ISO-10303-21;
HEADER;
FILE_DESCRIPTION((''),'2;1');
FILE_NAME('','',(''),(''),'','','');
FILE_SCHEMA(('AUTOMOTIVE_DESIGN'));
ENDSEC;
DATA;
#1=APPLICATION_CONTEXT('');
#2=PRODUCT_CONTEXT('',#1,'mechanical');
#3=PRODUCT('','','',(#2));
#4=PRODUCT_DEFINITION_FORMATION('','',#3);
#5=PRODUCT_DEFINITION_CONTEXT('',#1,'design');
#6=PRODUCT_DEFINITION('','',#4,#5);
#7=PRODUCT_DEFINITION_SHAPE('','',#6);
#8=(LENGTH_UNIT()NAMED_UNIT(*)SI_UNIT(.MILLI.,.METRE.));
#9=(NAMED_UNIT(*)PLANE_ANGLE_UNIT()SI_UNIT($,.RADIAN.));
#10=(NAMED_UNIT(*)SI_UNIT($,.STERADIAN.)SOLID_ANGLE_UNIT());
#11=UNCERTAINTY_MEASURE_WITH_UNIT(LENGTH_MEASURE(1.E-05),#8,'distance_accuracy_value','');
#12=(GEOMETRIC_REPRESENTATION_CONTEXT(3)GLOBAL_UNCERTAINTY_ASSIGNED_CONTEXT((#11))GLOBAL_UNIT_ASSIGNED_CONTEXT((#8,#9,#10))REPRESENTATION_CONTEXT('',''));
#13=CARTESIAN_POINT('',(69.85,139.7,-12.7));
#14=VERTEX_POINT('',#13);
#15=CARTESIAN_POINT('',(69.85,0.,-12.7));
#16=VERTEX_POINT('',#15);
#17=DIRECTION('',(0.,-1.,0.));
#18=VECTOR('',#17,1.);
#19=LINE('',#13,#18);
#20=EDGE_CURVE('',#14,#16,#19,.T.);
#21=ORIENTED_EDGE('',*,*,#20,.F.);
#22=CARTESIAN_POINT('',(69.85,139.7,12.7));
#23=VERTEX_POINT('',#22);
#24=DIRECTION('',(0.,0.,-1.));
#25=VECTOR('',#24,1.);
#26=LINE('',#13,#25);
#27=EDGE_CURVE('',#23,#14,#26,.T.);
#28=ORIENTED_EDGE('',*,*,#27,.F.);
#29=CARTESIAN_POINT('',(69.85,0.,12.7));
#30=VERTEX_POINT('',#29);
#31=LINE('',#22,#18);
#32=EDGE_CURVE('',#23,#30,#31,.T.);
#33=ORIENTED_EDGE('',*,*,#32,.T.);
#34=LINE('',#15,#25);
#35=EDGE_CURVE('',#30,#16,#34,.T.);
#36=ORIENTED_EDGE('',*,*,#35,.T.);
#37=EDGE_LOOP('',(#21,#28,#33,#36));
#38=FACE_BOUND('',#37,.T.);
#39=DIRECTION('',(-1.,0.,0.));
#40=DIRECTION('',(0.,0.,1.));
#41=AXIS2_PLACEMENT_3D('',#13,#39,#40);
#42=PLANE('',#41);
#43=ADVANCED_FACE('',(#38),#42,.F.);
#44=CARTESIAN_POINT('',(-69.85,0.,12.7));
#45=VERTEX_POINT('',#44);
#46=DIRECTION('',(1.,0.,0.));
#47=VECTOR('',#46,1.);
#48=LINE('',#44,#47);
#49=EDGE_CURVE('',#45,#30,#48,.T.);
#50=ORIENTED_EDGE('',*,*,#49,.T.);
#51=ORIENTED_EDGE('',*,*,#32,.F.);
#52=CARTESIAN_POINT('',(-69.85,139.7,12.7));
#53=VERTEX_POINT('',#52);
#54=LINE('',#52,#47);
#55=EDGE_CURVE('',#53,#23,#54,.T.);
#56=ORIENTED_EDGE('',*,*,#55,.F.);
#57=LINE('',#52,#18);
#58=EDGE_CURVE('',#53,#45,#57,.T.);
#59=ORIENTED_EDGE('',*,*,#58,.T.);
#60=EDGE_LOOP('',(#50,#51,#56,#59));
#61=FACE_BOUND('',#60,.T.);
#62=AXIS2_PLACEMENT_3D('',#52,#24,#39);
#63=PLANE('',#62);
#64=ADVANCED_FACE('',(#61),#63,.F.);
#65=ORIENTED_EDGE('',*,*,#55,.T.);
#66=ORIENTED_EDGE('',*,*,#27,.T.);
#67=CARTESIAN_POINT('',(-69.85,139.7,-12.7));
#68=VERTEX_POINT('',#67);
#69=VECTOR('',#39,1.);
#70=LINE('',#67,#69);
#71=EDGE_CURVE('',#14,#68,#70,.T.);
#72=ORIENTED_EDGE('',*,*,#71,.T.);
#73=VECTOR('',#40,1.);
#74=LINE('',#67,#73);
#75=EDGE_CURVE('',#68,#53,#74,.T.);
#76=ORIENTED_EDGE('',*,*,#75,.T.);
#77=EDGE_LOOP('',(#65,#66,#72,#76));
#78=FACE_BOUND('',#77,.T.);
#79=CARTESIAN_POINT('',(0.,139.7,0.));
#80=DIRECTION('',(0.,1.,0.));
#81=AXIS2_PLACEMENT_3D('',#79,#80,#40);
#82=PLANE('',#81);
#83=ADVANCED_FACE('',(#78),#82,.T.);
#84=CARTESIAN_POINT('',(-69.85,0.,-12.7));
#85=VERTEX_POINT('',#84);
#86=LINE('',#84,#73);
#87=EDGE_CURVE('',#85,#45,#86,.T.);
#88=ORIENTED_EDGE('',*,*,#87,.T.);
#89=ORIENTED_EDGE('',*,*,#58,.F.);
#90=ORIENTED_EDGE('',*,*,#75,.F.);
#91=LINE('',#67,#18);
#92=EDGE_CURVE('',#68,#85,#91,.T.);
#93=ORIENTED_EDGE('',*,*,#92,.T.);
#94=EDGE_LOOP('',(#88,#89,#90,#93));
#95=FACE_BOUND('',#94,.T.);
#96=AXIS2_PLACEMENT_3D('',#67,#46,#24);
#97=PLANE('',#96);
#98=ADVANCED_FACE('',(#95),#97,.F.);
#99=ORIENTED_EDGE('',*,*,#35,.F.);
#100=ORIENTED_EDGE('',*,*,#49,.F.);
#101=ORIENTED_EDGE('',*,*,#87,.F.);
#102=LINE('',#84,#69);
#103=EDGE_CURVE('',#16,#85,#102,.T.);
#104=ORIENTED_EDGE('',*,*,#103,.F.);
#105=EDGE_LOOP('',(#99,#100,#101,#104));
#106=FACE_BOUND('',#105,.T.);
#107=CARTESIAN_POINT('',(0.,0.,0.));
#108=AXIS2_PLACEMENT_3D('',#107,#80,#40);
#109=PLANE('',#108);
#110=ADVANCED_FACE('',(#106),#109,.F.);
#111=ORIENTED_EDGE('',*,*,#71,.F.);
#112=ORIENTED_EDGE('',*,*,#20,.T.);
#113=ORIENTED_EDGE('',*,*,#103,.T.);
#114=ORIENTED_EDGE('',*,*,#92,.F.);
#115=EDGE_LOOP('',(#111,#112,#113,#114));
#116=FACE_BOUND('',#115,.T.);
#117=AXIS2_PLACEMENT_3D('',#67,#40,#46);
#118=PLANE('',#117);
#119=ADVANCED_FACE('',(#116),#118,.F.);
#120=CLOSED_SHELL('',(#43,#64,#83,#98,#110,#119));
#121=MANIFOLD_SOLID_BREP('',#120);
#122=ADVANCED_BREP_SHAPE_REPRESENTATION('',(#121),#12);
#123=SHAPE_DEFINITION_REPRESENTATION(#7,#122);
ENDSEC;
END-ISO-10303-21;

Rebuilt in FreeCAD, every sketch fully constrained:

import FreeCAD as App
import Part
import Sketcher
Q = App.Units.Quantity

doc = App.newDocument("Part")
params = doc.addObject("Spreadsheet::Sheet", "Params")
for row, (alias, value) in enumerate([
    ("sketch1_height", "1 in"),
    ("sketch1_width", "5.5 in"),
    ("pad1_length", "5.5 in"),
], start=1):
    params.set(f"A{row}", alias)
    params.set(f"B{row}", "=" + value)
    params.setAlias(f"B{row}", alias)

body = doc.addObject("PartDesign::Body", "Body")

sketch1 = doc.addObject("Sketcher::SketchObject", "Sketch")
body.addObject(sketch1)
sketch1.AttachmentSupport = (doc.XZ_Plane, [""])
sketch1.MapMode = "FlatFace"
sketch1.addGeometry([
    Part.LineSegment(App.Vector(-70, -13, 0), App.Vector(-70, 13, 0)),
    Part.LineSegment(App.Vector(-70, 13, 0), App.Vector(70, 13, 0)),
    Part.LineSegment(App.Vector(70, 13, 0), App.Vector(70, -13, 0)),
    Part.LineSegment(App.Vector(70, -13, 0), App.Vector(-70, -13, 0)),
], False)
sketch1.addConstraint([
    Sketcher.Constraint("Coincident", 0, 2, 1, 1),
    Sketcher.Constraint("Coincident", 1, 2, 2, 1),
    Sketcher.Constraint("Coincident", 2, 2, 3, 1),
    Sketcher.Constraint("Coincident", 3, 2, 0, 1),
    Sketcher.Constraint("Vertical", 0),
    Sketcher.Constraint("Horizontal", 1),
    Sketcher.Constraint("Vertical", 2),
    Sketcher.Constraint("Horizontal", 3),
    Sketcher.Constraint("Symmetric", 0, 2, 2, 2, -1, 1),
    Sketcher.Constraint("DistanceY", 0, 1, 0, 2, Q("1 in")),
    Sketcher.Constraint("DistanceX", 1, 1, 1, 2, Q("5.5 in")),
])
sketch1.setExpression("Constraints[9]", "Params.sketch1_height")
sketch1.setExpression("Constraints[10]", "Params.sketch1_width")
pad1 = doc.addObject("PartDesign::Pad", "Pad")
body.addObject(pad1)
pad1.Profile = sketch1
pad1.setExpression("Length", "Params.pad1_length")
pad1.Reversed = True

doc.recompute()
